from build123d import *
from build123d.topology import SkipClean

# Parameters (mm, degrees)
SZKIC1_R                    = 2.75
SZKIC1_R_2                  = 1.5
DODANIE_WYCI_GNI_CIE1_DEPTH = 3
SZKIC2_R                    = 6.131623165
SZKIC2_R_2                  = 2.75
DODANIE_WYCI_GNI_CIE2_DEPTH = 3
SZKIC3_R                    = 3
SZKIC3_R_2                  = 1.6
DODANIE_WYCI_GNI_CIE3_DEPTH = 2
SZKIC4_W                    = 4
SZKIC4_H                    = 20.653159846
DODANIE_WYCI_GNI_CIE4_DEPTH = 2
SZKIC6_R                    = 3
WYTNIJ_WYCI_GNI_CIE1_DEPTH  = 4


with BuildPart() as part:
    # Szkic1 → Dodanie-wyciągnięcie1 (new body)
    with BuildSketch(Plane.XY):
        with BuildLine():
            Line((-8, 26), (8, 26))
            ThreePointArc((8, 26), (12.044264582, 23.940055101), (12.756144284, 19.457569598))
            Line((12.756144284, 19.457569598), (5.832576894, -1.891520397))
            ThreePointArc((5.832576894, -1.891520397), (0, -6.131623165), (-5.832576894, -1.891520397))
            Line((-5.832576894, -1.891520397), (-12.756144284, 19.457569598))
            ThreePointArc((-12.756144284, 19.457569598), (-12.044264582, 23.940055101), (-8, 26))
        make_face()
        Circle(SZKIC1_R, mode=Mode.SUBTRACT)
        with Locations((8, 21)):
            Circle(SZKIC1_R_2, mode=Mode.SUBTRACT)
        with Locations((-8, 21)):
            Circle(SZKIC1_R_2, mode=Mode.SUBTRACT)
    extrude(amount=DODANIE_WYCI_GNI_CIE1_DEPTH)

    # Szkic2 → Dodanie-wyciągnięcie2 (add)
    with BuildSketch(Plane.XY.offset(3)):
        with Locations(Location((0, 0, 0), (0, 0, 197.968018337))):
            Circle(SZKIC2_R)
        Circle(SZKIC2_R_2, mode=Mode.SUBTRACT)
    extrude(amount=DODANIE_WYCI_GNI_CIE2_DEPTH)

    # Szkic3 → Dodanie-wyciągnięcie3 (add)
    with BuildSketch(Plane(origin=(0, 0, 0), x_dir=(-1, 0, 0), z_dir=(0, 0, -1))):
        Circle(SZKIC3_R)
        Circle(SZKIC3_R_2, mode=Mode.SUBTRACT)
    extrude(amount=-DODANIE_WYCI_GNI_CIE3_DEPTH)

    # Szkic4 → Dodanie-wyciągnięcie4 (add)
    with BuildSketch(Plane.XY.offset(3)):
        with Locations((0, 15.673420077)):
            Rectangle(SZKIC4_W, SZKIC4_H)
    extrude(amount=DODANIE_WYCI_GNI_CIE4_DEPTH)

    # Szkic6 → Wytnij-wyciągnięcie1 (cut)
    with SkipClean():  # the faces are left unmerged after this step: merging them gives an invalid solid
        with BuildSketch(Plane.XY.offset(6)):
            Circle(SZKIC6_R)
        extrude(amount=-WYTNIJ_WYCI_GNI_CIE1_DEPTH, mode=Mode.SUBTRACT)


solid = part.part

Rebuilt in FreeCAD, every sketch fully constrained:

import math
import FreeCAD as App
import Part
import Sketcher
Q = App.Units.Quantity


def add_polygon(sketch, points):
    """Adds a closed chain of lines whose ends are joined by coincident constraints."""
    first, n = sketch.GeometryCount, len(points)
    for a, b in zip(points, points[1:] + points[:1]):
        sketch.addGeometry(Part.LineSegment(App.Vector(*a, 0), App.Vector(*b, 0)), False)
    for i in range(n):
        sketch.addConstraint(Sketcher.Constraint("Coincident", first + i, 2, first + (i + 1) % n, 1))

doc = App.newDocument("Part")
body = doc.addObject("PartDesign::Body", "Body")

# Sketch on XY plane
sketch1 = body.newObject("Sketcher::SketchObject", "Sketch")
sketch1.AttachmentSupport = (doc.getObject("XY_Plane"), [""])
sketch1.MapMode = "FlatFace"
sketch1.addGeometry(Part.LineSegment(App.Vector(8, 26, 0), App.Vector(-8, 26, 0)), False)
sketch1.addGeometry(Part.ArcOfCircle(Part.Circle(App.Vector(-8, 21, 0), App.Vector(0, 0, 1), 5), math.radians(90), math.radians(197.968018)), False)
sketch1.addGeometry(Part.LineSegment(App.Vector(-12.756144, 19.45757, 0), App.Vector(-5.832577, -1.89152, 0)), False)
sketch1.addGeometry(Part.ArcOfCircle(Part.Circle(App.Vector(0, 0, 0), App.Vector(0, 0, 1), 6.131623), math.radians(-162.031982), math.radians(-17.968018)), False)
sketch1.addGeometry(Part.LineSegment(App.Vector(5.832577, -1.89152, 0), App.Vector(12.756144, 19.45757, 0)), False)
sketch1.addGeometry(Part.ArcOfCircle(Part.Circle(App.Vector(8, 21, 0), App.Vector(0, 0, 1), 5), math.radians(-17.968018), math.radians(90)), False)
sketch1.addGeometry(Part.Circle(App.Vector(0, 0, 0), App.Vector(0, 0, 1), 2.75), False)
sketch1.addGeometry(Part.Circle(App.Vector(8, 21, 0), App.Vector(0, 0, 1), 1.5), False)
sketch1.addGeometry(Part.Circle(App.Vector(-8, 21, 0), App.Vector(0, 0, 1), 1.5), False)
sketch1.addConstraint(Sketcher.Constraint("Tangent", 0, 2, 1, 1))
sketch1.addConstraint(Sketcher.Constraint("Tangent", 1, 2, 2, 1))
sketch1.addConstraint(Sketcher.Constraint("Tangent", 2, 2, 3, 1))
sketch1.addConstraint(Sketcher.Constraint("Tangent", 3, 2, 4, 1))
sketch1.addConstraint(Sketcher.Constraint("Tangent", 4, 2, 5, 1))
sketch1.addConstraint(Sketcher.Constraint("Tangent", 5, 2, 0, 1))
sketch1.addConstraint(Sketcher.Constraint("Horizontal", 0))
sketch1.addConstraint(Sketcher.Constraint("Coincident", 3, 3, -1, 1))
sketch1.addConstraint(Sketcher.Constraint("Coincident", 6, 3, -1, 1))
sketch1.addConstraint(Sketcher.Constraint("Coincident", 7, 3, 5, 3))
sketch1.addConstraint(Sketcher.Constraint("Coincident", 8, 3, 1, 3))
sketch1.addConstraint(Sketcher.Constraint("Equal", 1, 5))
sketch1.addConstraint(Sketcher.Constraint("Equal", 7, 8))
sketch1.addConstraint(Sketcher.Constraint("Horizontal", 2, 2, 3, 2))
sketch1.addConstraint(Sketcher.Constraint("Diameter", 7, Q("3 mm")))
sketch1.addConstraint(Sketcher.Constraint("Radius", 1, Q("5 mm")))
sketch1.addConstraint(Sketcher.Constraint("Diameter", 6, Q("5.5 mm")))
sketch1.addConstraint(Sketcher.Constraint("DistanceX", 0, 2, 0, 1, Q("16 mm")))
sketch1.addConstraint(Sketcher.Constraint("DistanceY", -1, 1, 1, 3, Q("21 mm")))
sketch1.addConstraint(Sketcher.Constraint("Radius", 3, Q("6.131623 mm")))
pad1 = body.newObject("PartDesign::Pad", "Pad")
pad1.Profile = sketch1
pad1.Length = 3

# Sketch on XY plane
sketch2 = body.newObject("Sketcher::SketchObject", "Sketch001")
sketch2.AttachmentSupport = (doc.getObject("XY_Plane"), [""])
sketch2.MapMode = "FlatFace"
sketch2.AttachmentOffset = App.Placement(App.Vector(0, 0, 3), App.Rotation())
sketch2.addGeometry(Part.Circle(App.Vector(0, 0, 0), App.Vector(0, 0, 1), 6.131623), False)
sketch2.addGeometry(Part.Circle(App.Vector(0, 0, 0), App.Vector(0, 0, 1), 2.75), False)
sketch2.addConstraint(Sketcher.Constraint("Coincident", 0, 3, -1, 1))
sketch2.addConstraint(Sketcher.Constraint("Coincident", 1, 3, -1, 1))
sketch2.addConstraint(Sketcher.Constraint("Diameter", 1, Q("5.5 mm")))
sketch2.addConstraint(Sketcher.Constraint("Diameter", 0, Q("12.263246 mm")))
pad2 = body.newObject("PartDesign::Pad", "Pad001")
pad2.Profile = sketch2
pad2.Length = 3

# Sketch on XY plane
sketch3 = body.newObject("Sketcher::SketchObject", "Sketch002")
sketch3.AttachmentSupport = (doc.getObject("XY_Plane"), [""])
sketch3.MapMode = "FlatFace"
sketch3.addGeometry(Part.Circle(App.Vector(0, 0, 0), App.Vector(0, 0, 1), 3), False)
sketch3.addGeometry(Part.Circle(App.Vector(0, 0, 0), App.Vector(0, 0, 1), 1.6), False)
sketch3.addConstraint(Sketcher.Constraint("Coincident", 0, 3, -1, 1))
sketch3.addConstraint(Sketcher.Constraint("Coincident", 1, 3, -1, 1))
sketch3.addConstraint(Sketcher.Constraint("Diameter", 0, Q("6 mm")))
sketch3.addConstraint(Sketcher.Constraint("Diameter", 1, Q("3.2 mm")))
pad3 = body.newObject("PartDesign::Pad", "Pad002")
pad3.Profile = sketch3
pad3.Length = 2

# Sketch on XY plane
sketch4 = body.newObject("Sketcher::SketchObject", "Sketch003")
sketch4.AttachmentSupport = (doc.getObject("XY_Plane"), [""])
sketch4.MapMode = "FlatFace"
sketch4.AttachmentOffset = App.Placement(App.Vector(0, 0, 3), App.Rotation())
add_polygon(sketch4, [(-2, 26), (-2, 5.34684), (2, 5.34684), (2, 26)])  # lines 0-3
sketch4.addConstraint(Sketcher.Constraint("Vertical", 0))
sketch4.addConstraint(Sketcher.Constraint("Horizontal", 1))
sketch4.addConstraint(Sketcher.Constraint("Vertical", 2))
sketch4.addConstraint(Sketcher.Constraint("Horizontal", 3))
sketch4.addConstraint(Sketcher.Constraint("DistanceX", 1, 1, 1, 2, Q("4 mm")))
sketch4.addConstraint(Sketcher.Constraint("DistanceX", 0, 2, -1, 1, Q("2 mm")))
sketch4.addConstraint(Sketcher.Constraint("DistanceY", -1, 1, 2, 2, Q("26 mm")))
sketch4.addConstraint(Sketcher.Constraint("DistanceY", 0, 2, 0, 1, Q("20.65316 mm")))
pad4 = body.newObject("PartDesign::Pad", "Pad003")
pad4.Profile = sketch4
pad4.Length = 2

# Sketch on XY plane
sketch5 = body.newObject("Sketcher::SketchObject", "Sketch004")
sketch5.AttachmentSupport = (doc.getObject("XY_Plane"), [""])
sketch5.MapMode = "FlatFace"
sketch5.AttachmentOffset = App.Placement(App.Vector(0, 0, 6), App.Rotation())
sketch5.addGeometry(Part.Circle(App.Vector(0, 0, 0), App.Vector(0, 0, 1), 3), False)
sketch5.addConstraint(Sketcher.Constraint("Coincident", 0, 3, -1, 1))
sketch5.addConstraint(Sketcher.Constraint("Diameter", 0, Q("6 mm")))
pocket1 = body.newObject("PartDesign::Pocket", "Pocket")
pocket1.Profile = sketch5
pocket1.Length = 4

doc.recompute()
